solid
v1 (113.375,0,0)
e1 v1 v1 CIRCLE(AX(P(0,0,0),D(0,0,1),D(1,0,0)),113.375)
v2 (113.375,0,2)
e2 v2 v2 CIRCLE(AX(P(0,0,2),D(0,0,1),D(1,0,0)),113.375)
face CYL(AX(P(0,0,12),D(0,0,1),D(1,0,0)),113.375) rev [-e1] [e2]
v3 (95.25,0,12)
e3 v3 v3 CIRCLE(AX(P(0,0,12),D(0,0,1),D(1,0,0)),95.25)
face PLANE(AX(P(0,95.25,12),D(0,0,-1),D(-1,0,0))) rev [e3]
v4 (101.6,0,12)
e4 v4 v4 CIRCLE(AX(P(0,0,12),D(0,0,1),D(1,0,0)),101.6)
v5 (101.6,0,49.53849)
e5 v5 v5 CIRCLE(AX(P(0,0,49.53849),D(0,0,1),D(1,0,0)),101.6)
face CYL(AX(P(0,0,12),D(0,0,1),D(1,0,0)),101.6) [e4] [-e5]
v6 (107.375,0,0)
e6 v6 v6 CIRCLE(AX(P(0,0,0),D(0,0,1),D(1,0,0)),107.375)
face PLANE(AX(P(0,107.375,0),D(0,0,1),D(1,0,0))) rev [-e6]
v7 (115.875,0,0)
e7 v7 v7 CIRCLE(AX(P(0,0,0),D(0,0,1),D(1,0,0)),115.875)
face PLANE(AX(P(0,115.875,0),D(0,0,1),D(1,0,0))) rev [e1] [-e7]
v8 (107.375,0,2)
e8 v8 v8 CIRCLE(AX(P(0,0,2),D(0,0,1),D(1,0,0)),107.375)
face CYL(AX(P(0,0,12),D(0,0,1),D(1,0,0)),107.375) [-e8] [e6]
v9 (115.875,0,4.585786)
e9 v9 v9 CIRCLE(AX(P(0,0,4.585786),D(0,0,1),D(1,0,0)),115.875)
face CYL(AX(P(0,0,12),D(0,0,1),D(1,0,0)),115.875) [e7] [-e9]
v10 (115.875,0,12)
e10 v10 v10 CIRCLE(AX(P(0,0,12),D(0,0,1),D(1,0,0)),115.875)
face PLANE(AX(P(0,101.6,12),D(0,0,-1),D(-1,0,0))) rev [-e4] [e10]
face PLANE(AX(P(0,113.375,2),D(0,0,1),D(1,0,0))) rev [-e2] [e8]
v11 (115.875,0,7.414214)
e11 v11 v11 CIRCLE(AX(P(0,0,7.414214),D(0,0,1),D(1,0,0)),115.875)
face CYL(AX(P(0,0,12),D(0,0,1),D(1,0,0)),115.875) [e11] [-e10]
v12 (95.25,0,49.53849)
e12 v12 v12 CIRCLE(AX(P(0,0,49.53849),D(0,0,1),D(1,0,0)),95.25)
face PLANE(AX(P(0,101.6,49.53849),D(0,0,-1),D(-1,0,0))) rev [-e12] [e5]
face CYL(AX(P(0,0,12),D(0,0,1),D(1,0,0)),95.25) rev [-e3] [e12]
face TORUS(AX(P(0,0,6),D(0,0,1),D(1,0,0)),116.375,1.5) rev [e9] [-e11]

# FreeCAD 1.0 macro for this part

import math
import FreeCAD as App
import Part
import Sketcher
Q = App.Units.Quantity

doc = App.newDocument("Part")
body = doc.addObject("PartDesign::Body", "Body")

# Sketch on YZ plane
sketch1 = doc.addObject("Sketcher::SketchObject", "Sketch")
body.addObject(sketch1)
sketch1.AttachmentSupport = (doc.YZ_Plane, [""])
sketch1.MapMode = "FlatFace"
sketch1.addGeometry(Part.LineSegment(App.Vector(115.9, 0, 0), App.Vector(115.9, 4.6, 0)), False)
sketch1.addGeometry(Part.ArcOfCircle(Part.Circle(App.Vector(116.4, 6, 0), App.Vector(0, 0, 1), 1.5), math.radians(109), math.radians(251)), False)
sketch1.addGeometry(Part.LineSegment(App.Vector(115.9, 7.4, 0), App.Vector(115.9, 12, 0)), False)
sketch1.addGeometry(Part.LineSegment(App.Vector(115.9, 12, 0), App.Vector(101.6, 12, 0)), False)
sketch1.addGeometry(Part.LineSegment(App.Vector(101.6, 12, 0), App.Vector(101.6, 49.5, 0)), False)
sketch1.addGeometry(Part.LineSegment(App.Vector(101.6, 49.5, 0), App.Vector(95.2, 49.5, 0)), False)
sketch1.addGeometry(Part.LineSegment(App.Vector(95.2, 49.5, 0), App.Vector(95.2, 12, 0)), False)
sketch1.addGeometry(Part.LineSegment(App.Vector(95.2, 12, 0), App.Vector(0, 12, 0)), False)
sketch1.addGeometry(Part.LineSegment(App.Vector(0, 12, 0), App.Vector(0, 0, 0)), False)
sketch1.addGeometry(Part.LineSegment(App.Vector(0, 0, 0), App.Vector(107.4, 0, 0)), False)
sketch1.addGeometry(Part.LineSegment(App.Vector(107.4, 0, 0), App.Vector(107.4, 2, 0)), False)
sketch1.addGeometry(Part.LineSegment(App.Vector(107.4, 2, 0), App.Vector(113.4, 2, 0)), False)
sketch1.addGeometry(Part.LineSegment(App.Vector(113.4, 2, 0), App.Vector(113.4, 0, 0)), False)
sketch1.addGeometry(Part.LineSegment(App.Vector(113.4, 0, 0), App.Vector(115.9, 0, 0)), False)
sketch1.addConstraint(Sketcher.Constraint("Coincident", 0, 2, 1, 2))
sketch1.addConstraint(Sketcher.Constraint("Coincident", 1, 1, 2, 1))
sketch1.addConstraint(Sketcher.Constraint("Coincident", 2, 2, 3, 1))
sketch1.addConstraint(Sketcher.Constraint("Coincident", 3, 2, 4, 1))
sketch1.addConstraint(Sketcher.Constraint("Coincident", 4, 2, 5, 1))
sketch1.addConstraint(Sketcher.Constraint("Coincident", 5, 2, 6, 1))
sketch1.addConstraint(Sketcher.Constraint("Coincident", 6, 2, 7, 1))
sketch1.addConstraint(Sketcher.Constraint("Coincident", 7, 2, 8, 1))
sketch1.addConstraint(Sketcher.Constraint("Coincident", 8, 2, 9, 1))
sketch1.addConstraint(Sketcher.Constraint("Coincident", 9, 2, 10, 1))
sketch1.addConstraint(Sketcher.Constraint("Coincident", 10, 2, 11, 1))
sketch1.addConstraint(Sketcher.Constraint("Coincident", 11, 2, 12, 1))
sketch1.addConstraint(Sketcher.Constraint("Coincident", 12, 2, 13, 1))
sketch1.addConstraint(Sketcher.Constraint("Coincident", 13, 2, 0, 1))
sketch1.addConstraint(Sketcher.Constraint("Vertical", 0))
sketch1.addConstraint(Sketcher.Constraint("Vertical", 2))
sketch1.addConstraint(Sketcher.Constraint("Horizontal", 3))
sketch1.addConstraint(Sketcher.Constraint("Vertical", 4))
sketch1.addConstraint(Sketcher.Constraint("Horizontal", 5))
sketch1.addConstraint(Sketcher.Constraint("Vertical", 6))
sketch1.addConstraint(Sketcher.Constraint("Horizontal", 7))
sketch1.addConstraint(Sketcher.Constraint("Vertical", 8))
sketch1.addConstraint(Sketcher.Constraint("Horizontal", 9))
sketch1.addConstraint(Sketcher.Constraint("Vertical", 10))
sketch1.addConstraint(Sketcher.Constraint("Horizontal", 11))
sketch1.addConstraint(Sketcher.Constraint("Vertical", 12))
sketch1.addConstraint(Sketcher.Constraint("Horizontal", 13))
sketch1.addConstraint(Sketcher.Constraint("Coincident", 8, 2, -1, 1))
sketch1.addConstraint(Sketcher.Constraint("PointOnObject", 12, 2, -1))
sketch1.addConstraint(Sketcher.Constraint("Horizontal", 3, 2, 6, 2))
sketch1.addConstraint(Sketcher.Constraint("Vertical", 0, 2, 1, 1))
sketch1.addConstraint(Sketcher.Constraint("Equal", 0, 2))
sketch1.addConstraint(Sketcher.Constraint("Radius", 1, Q("1.5 mm")))
sketch1.addConstraint(Sketcher.Constraint("DistanceX", 11, 1, 11, 2, Q("6 mm")))
sketch1.addConstraint(Sketcher.Constraint("DistanceY", 8, 2, 8, 1, Q("12 mm")))
sketch1.addConstraint(Sketcher.Constraint("DistanceY", 10, 1, 10, 2, Q("2 mm")))
sketch1.addConstraint(Sketcher.Constraint("DistanceX", 13, 1, 13, 2, Q("2.5 mm")))
sketch1.addConstraint(Sketcher.Constraint("DistanceX", 9, 2, 1, 3, Q("9 mm")))
sketch1.addConstraint(Sketcher.Constraint("DistanceX", 5, 2, 5, 1, Q("6.35 mm")))
sketch1.addConstraint(Sketcher.Constraint("DistanceX", 7, 2, 7, 1, Q("95.25 mm")))
sketch1.addConstraint(Sketcher.Constraint("DistanceX", 3, 2, 3, 1, Q("14.275 mm")))
sketch1.addConstraint(Sketcher.Constraint("DistanceY", 4, 1, 4, 2, Q("37.53849 mm")))
revolution = doc.addObject("PartDesign::Revolution", "Revolution")
body.addObject(revolution)
revolution.Profile = sketch1
revolution.ReferenceAxis = (sketch1, ["V_Axis"])
revolution.Angle = 360

doc.recompute()
